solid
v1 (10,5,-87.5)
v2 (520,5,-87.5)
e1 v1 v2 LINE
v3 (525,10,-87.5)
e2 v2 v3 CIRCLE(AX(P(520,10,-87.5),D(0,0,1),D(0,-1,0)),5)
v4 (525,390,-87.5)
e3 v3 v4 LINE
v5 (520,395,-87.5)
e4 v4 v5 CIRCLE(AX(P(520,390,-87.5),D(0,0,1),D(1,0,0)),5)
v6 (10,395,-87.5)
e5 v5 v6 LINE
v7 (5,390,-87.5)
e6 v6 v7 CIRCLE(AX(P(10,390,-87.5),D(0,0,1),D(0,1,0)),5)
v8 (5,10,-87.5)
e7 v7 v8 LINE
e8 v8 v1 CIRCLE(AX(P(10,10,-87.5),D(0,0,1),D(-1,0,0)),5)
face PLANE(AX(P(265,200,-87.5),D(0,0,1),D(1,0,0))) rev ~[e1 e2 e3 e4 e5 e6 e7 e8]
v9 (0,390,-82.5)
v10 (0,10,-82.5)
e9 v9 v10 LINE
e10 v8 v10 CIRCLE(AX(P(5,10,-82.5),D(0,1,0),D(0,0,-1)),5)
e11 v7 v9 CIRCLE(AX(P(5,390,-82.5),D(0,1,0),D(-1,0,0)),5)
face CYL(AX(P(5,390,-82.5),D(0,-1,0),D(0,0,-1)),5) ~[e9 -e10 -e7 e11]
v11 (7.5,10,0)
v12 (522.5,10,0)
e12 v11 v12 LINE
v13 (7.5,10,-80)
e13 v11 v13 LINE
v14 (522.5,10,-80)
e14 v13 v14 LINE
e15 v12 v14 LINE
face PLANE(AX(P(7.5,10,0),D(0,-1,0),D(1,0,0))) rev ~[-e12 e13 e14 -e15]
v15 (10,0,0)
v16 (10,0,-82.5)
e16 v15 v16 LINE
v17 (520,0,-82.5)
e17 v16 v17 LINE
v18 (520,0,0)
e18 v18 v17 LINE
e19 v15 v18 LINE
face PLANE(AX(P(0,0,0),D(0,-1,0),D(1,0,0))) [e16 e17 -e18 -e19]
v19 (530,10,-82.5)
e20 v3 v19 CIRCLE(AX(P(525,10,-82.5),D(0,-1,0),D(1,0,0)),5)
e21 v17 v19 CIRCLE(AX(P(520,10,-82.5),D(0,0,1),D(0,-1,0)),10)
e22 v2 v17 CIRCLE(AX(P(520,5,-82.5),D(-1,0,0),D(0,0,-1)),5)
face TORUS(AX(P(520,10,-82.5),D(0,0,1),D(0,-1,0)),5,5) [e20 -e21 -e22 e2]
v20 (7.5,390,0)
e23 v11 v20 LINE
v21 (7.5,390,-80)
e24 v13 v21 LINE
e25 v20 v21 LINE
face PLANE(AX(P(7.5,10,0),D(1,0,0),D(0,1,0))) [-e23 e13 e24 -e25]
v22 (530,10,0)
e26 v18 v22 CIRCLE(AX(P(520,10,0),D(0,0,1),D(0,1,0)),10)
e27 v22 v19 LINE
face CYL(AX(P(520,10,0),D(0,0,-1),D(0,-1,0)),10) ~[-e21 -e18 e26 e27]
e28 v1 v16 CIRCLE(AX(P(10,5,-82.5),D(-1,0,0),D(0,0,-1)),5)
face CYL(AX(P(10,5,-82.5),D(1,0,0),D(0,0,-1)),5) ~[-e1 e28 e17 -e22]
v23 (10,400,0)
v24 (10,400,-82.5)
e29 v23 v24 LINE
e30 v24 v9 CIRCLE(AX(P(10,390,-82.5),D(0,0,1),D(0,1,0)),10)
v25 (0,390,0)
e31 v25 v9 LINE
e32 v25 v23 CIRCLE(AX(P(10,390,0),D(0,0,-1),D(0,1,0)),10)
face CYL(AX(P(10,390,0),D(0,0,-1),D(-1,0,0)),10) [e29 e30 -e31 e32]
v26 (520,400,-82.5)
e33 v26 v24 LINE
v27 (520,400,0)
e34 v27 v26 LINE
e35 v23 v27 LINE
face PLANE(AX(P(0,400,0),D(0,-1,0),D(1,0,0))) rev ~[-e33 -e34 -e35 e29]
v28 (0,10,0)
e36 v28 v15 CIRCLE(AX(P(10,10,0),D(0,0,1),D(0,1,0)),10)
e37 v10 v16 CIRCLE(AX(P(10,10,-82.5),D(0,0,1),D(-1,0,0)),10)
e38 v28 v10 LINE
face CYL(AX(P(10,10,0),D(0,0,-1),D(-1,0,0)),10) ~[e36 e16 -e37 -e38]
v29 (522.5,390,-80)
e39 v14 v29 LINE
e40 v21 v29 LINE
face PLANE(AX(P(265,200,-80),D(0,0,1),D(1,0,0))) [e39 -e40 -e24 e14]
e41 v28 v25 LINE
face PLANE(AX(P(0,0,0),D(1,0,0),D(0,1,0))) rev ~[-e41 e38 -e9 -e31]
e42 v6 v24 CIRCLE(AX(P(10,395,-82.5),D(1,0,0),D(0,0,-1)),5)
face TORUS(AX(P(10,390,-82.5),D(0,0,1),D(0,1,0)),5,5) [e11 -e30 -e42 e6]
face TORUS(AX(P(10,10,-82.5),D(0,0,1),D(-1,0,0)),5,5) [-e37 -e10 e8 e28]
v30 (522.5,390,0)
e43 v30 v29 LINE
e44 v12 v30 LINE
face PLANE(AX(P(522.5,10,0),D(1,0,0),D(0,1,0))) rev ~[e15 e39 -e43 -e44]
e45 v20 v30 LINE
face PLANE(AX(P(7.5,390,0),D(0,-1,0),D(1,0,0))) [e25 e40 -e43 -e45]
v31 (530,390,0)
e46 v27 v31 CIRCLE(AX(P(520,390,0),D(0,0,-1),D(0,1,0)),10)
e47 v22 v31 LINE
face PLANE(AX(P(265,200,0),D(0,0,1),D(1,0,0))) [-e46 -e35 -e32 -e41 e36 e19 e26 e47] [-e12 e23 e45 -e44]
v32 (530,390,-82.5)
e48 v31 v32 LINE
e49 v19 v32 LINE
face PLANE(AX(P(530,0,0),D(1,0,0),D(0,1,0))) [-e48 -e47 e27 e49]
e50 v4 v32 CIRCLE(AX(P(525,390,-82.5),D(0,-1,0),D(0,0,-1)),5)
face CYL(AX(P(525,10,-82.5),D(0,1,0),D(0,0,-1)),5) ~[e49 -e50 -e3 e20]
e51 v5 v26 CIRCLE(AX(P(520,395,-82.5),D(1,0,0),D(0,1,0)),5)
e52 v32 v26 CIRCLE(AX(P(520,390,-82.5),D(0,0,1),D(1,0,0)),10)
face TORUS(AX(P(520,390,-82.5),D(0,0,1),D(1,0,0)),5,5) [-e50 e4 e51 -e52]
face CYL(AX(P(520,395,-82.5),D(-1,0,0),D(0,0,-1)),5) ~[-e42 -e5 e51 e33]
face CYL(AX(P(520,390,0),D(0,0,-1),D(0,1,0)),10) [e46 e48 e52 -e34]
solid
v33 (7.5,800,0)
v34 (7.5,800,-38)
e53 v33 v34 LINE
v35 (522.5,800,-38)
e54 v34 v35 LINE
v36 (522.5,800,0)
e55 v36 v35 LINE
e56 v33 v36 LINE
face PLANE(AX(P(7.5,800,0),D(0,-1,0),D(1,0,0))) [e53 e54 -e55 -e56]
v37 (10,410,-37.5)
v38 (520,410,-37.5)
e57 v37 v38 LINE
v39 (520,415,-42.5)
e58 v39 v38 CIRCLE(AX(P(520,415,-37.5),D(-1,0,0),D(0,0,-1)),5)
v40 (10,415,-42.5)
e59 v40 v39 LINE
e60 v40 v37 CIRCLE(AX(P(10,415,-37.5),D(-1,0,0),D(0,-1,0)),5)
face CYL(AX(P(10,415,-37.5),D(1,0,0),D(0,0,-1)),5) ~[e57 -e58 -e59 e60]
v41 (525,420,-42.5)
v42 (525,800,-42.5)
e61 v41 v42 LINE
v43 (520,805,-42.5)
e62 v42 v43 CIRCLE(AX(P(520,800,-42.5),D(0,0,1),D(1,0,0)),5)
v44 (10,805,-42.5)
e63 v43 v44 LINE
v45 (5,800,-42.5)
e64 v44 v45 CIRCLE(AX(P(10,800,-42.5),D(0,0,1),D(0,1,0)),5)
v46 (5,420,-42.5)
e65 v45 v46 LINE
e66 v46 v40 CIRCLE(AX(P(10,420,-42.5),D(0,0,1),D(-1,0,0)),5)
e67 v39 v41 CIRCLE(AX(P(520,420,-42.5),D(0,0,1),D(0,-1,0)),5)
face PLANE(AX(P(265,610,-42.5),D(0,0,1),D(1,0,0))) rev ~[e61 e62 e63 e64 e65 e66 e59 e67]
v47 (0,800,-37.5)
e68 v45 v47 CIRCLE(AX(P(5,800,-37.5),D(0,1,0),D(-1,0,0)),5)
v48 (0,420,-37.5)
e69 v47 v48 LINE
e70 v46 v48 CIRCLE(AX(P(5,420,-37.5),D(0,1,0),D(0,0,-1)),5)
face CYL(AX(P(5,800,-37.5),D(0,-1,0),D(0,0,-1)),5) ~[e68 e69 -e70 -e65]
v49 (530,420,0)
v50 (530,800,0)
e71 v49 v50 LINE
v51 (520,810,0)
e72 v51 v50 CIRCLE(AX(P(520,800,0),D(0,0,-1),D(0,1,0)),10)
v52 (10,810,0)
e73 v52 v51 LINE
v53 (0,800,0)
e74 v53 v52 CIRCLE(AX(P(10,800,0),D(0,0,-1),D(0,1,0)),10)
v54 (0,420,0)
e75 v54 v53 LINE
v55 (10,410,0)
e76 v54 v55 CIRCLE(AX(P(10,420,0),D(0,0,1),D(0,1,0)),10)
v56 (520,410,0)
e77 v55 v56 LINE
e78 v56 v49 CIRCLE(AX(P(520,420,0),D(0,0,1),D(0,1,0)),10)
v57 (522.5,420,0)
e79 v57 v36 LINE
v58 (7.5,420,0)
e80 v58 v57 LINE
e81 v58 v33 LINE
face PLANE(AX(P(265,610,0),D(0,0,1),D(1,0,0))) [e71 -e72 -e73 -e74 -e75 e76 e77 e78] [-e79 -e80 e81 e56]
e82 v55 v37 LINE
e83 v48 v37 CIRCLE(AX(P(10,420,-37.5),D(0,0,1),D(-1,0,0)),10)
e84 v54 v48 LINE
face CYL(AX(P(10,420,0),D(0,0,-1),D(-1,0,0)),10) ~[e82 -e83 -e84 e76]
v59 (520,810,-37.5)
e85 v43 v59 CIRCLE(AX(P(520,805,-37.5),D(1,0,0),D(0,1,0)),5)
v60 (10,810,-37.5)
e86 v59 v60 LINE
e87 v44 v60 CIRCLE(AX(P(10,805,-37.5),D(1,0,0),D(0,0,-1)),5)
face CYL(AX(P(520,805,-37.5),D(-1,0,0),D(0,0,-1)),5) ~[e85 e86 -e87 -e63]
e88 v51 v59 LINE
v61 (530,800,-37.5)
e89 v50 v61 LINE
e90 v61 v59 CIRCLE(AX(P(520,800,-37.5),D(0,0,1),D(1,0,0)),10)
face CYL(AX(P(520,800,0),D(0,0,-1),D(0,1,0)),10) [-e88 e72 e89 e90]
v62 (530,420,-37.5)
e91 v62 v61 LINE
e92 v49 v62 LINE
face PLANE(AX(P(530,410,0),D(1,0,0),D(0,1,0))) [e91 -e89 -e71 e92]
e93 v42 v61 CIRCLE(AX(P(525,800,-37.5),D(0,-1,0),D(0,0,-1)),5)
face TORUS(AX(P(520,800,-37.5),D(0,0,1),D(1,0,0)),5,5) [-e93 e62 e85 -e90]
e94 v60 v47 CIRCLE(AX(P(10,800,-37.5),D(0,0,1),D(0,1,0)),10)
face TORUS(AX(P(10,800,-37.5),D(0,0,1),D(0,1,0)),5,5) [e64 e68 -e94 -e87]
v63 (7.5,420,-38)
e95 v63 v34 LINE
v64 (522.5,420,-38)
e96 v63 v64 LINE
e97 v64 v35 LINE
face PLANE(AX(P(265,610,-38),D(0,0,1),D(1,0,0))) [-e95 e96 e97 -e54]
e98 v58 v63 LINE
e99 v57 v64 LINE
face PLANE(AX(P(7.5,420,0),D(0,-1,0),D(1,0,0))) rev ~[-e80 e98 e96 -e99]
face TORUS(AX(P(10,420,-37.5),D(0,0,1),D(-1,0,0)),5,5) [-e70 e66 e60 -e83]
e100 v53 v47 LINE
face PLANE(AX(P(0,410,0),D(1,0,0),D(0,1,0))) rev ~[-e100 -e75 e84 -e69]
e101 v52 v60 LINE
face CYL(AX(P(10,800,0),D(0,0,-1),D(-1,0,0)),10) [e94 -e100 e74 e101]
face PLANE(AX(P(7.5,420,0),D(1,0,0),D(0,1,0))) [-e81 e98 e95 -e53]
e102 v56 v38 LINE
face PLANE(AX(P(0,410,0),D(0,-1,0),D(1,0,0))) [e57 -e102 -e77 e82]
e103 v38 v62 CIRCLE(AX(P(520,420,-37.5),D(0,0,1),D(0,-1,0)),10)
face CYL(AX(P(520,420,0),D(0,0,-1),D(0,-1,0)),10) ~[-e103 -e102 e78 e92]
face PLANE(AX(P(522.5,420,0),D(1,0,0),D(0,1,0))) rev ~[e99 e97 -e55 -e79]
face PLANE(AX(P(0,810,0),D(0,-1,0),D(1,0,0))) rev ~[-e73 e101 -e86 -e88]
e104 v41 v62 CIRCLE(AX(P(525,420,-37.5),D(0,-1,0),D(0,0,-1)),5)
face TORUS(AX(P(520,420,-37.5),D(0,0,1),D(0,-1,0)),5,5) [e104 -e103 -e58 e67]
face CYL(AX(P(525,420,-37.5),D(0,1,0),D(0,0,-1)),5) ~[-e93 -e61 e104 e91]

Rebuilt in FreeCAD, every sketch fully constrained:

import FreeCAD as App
import Part
import Sketcher
from FreeCAD import Vector


def edges_at(feature, points):
    """Names of the edges that pass closest to the given points."""
    edges = feature.Shape.Edges
    near = lambda p: min(range(len(edges)), key=lambda i: edges[i].distToShape(Part.Vertex(*p))[0])
    return sorted({f"Edge{near(p) + 1}" for p in points})


def add_polygon(sketch, points):
    """Adds a closed chain of lines whose ends are joined by coincident constraints."""
    first, n = sketch.GeometryCount, len(points)
    for a, b in zip(points, points[1:] + points[:1]):
        sketch.addGeometry(Part.LineSegment(App.Vector(*a, 0), App.Vector(*b, 0)), False)
    for i in range(n):
        sketch.addConstraint(Sketcher.Constraint("Coincident", first + i, 2, first + (i + 1) % n, 1))

doc = App.newDocument("Part")
body = doc.addObject("PartDesign::Body", "Body")

# Sketch on XY plane
sketch1 = body.newObject("Sketcher::SketchObject", "Sketch")
sketch1.AttachmentSupport = (doc.getObject("XY_Plane"), [""])
sketch1.MapMode = "FlatFace"
add_polygon(sketch1, [(0, 400), (0, 0), (530, 0), (530, 400)])  # lines 0-3
sketch1.addConstraint(Sketcher.Constraint("Vertical", 0))
sketch1.addConstraint(Sketcher.Constraint("Horizontal", 1))
sketch1.addConstraint(Sketcher.Constraint("Vertical", 2))
sketch1.addConstraint(Sketcher.Constraint("Horizontal", 3))
sketch1.addConstraint(Sketcher.Constraint("Coincident", 0, 2, -1, 1))
sketch1.addConstraint(Sketcher.Constraint("DistanceX", 1, 1, 1, 2, 530.0))
sketch1.addConstraint(Sketcher.Constraint("DistanceY", 0, 2, 0, 1, 400.0))
pad1 = body.newObject("PartDesign::Pad", "Pad")
pad1.Profile = sketch1
pad1.Length = 87.5
pad1.Reversed = True

# Sketch on XY plane
sketch2 = body.newObject("Sketcher::SketchObject", "Sketch001")
sketch2.AttachmentSupport = (doc.getObject("XY_Plane"), [""])
sketch2.MapMode = "FlatFace"
add_polygon(sketch2, [(8, 390), (8, 10), (522, 10), (522, 390)])  # lines 0-3
sketch2.addConstraint(Sketcher.Constraint("Vertical", 0))
sketch2.addConstraint(Sketcher.Constraint("Horizontal", 1))
sketch2.addConstraint(Sketcher.Constraint("Vertical", 2))
sketch2.addConstraint(Sketcher.Constraint("Horizontal", 3))
sketch2.addConstraint(Sketcher.Constraint("DistanceX", 1, 1, 1, 2, 515.0))
sketch2.addConstraint(Sketcher.Constraint("DistanceY", 0, 2, 0, 1, 380.0))
sketch2.addConstraint(Sketcher.Constraint("DistanceY", -1, 1, 0, 2, 10.0))
sketch2.addConstraint(Sketcher.Constraint("DistanceX", -1, 1, 0, 2, 7.5))
pocket1 = body.newObject("PartDesign::Pocket", "Pocket")
pocket1.Profile = sketch2
pocket1.Length = 80
doc.recompute()

fillet = body.newObject("PartDesign::Fillet", "Fillet")
fillet.Base = (pocket1, edges_at(pocket1, [
    (0, 0, -43.75),
    (530, 0, -43.75),
    (530, 400, -43.75),
    (0, 400, -43.75),
]))
fillet.Radius = 10
doc.recompute()

fillet2 = body.newObject("PartDesign::Fillet", "Fillet001")
fillet2.Base = (fillet, edges_at(fillet, [(265, 0, -87.5)]))
fillet2.Radius = 5
body2 = doc.addObject("PartDesign::Body", "Body001")

# Sketch on XY plane
sketch3 = body2.newObject("Sketcher::SketchObject", "Sketch002")
sketch3.AttachmentSupport = (doc.getObject("XY_Plane001"), [""])
sketch3.MapMode = "FlatFace"
add_polygon(sketch3, [(0, 810), (0, 410), (530, 410), (530, 810)])  # lines 0-3
sketch3.addConstraint(Sketcher.Constraint("Vertical", 0))
sketch3.addConstraint(Sketcher.Constraint("Horizontal", 1))
sketch3.addConstraint(Sketcher.Constraint("Vertical", 2))
sketch3.addConstraint(Sketcher.Constraint("Horizontal", 3))
sketch3.addConstraint(Sketcher.Constraint("PointOnObject", 0, 2, -2))
sketch3.addConstraint(Sketcher.Constraint("DistanceX", 1, 1, 1, 2, 530.0))
sketch3.addConstraint(Sketcher.Constraint("DistanceY", 0, 2, 0, 1, 400.0))
sketch3.addConstraint(Sketcher.Constraint("DistanceY", -1, 1, 0, 2, 410.0))
pad2 = body2.newObject("PartDesign::Pad", "Pad001")
pad2.Profile = sketch3
pad2.Length = 42.5
pad2.Reversed = True

# Sketch on XY plane
sketch4 = body2.newObject("Sketcher::SketchObject", "Sketch003")
sketch4.AttachmentSupport = (doc.getObject("XY_Plane001"), [""])
sketch4.MapMode = "FlatFace"
add_polygon(sketch4, [(8, 800), (8, 420), (522, 420), (522, 800)])  # lines 0-3
sketch4.addConstraint(Sketcher.Constraint("Vertical", 0))
sketch4.addConstraint(Sketcher.Constraint("Horizontal", 1))
sketch4.addConstraint(Sketcher.Constraint("Vertical", 2))
sketch4.addConstraint(Sketcher.Constraint("Horizontal", 3))
sketch4.addConstraint(Sketcher.Constraint("DistanceX", 1, 1, 1, 2, 515.0))
sketch4.addConstraint(Sketcher.Constraint("DistanceY", 0, 2, 0, 1, 380.0))
sketch4.addConstraint(Sketcher.Constraint("DistanceY", -1, 1, 0, 2, 420.0))
sketch4.addConstraint(Sketcher.Constraint("DistanceX", -1, 1, 0, 2, 7.5))
pocket2 = body2.newObject("PartDesign::Pocket", "Pocket001")
pocket2.Profile = sketch4
pocket2.Length = 38
doc.recompute()

fillet3 = body2.newObject("PartDesign::Fillet", "Fillet002")
fillet3.Base = (pocket2, edges_at(pocket2, [
    (530, 410, -21.25),
    (0, 410, -21.25),
    (0, 810, -21.25),
    (530, 810, -21.25),
]))
fillet3.Radius = 10
doc.recompute()

fillet4 = body2.newObject("PartDesign::Fillet", "Fillet003")
fillet4.Base = (fillet3, edges_at(fillet3, [(530, 610, -42.5)]))
fillet4.Radius = 5

doc.recompute()
